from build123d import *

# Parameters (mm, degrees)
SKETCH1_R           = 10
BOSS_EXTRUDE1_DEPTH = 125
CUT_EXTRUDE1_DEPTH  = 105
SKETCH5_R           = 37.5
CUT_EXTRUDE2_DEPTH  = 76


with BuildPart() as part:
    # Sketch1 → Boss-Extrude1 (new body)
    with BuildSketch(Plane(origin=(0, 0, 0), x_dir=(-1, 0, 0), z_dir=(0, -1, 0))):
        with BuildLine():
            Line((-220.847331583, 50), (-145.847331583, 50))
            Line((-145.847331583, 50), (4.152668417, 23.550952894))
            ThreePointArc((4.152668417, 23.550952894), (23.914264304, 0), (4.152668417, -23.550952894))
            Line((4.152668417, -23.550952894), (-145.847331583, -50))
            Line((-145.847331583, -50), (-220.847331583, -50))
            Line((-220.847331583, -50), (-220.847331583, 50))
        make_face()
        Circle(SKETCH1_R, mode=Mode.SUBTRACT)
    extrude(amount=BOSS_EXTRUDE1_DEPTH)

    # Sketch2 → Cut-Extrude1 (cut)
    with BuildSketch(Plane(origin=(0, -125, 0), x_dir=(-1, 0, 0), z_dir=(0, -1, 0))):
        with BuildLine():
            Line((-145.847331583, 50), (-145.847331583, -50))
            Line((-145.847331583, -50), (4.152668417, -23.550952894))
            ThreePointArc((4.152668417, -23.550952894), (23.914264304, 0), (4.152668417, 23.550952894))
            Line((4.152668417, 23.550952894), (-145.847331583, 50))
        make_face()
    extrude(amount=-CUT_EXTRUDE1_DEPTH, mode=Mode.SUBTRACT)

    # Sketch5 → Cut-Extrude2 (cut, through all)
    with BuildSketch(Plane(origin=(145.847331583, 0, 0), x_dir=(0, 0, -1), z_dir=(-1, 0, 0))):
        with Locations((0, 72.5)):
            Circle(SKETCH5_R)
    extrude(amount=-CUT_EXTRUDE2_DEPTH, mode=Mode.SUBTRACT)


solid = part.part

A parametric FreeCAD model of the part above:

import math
import FreeCAD as App
import Part
import Sketcher
Q = App.Units.Quantity

doc = App.newDocument("Part")
body = doc.addObject("PartDesign::Body", "Body")

sketch1 = body.newObject("Sketcher::SketchObject", "Sketch")
sketch1.AttachmentSupport = (doc.getObject("XZ_Plane"), [""])
sketch1.MapMode = "FlatFace"
sketch1.addGeometry(Part.LineSegment(App.Vector(145.847332, -50, 0), App.Vector(220.847332, -50, 0)), False)
sketch1.addGeometry(Part.LineSegment(App.Vector(220.847332, -50, 0), App.Vector(220.847332, 50, 0)), False)
sketch1.addGeometry(Part.LineSegment(App.Vector(220.847332, 50, 0), App.Vector(145.847332, 50, 0)), False)
sketch1.addGeometry(Part.LineSegment(App.Vector(145.847332, 50, 0), App.Vector(-4.152668, 23.550953, 0)), False)
sketch1.addGeometry(Part.ArcOfCircle(Part.Circle(App.Vector(0, 0, 0), App.Vector(0, 0, 1), 23.914264), math.radians(100), math.radians(260)), False)
sketch1.addGeometry(Part.LineSegment(App.Vector(-4.152668, -23.550953, 0), App.Vector(145.847332, -50, 0)), False)
sketch1.addGeometry(Part.Circle(App.Vector(0, 0, 0), App.Vector(0, 0, 1), 10), False)
sketch1.addConstraint(Sketcher.Constraint("Coincident", 0, 2, 1, 1))
sketch1.addConstraint(Sketcher.Constraint("Coincident", 1, 2, 2, 1))
sketch1.addConstraint(Sketcher.Constraint("Coincident", 2, 2, 3, 1))
sketch1.addConstraint(Sketcher.Constraint("Tangent", 3, 2, 4, 1))
sketch1.addConstraint(Sketcher.Constraint("Tangent", 4, 2, 5, 1))
sketch1.addConstraint(Sketcher.Constraint("Coincident", 5, 2, 0, 1))
sketch1.addConstraint(Sketcher.Constraint("Horizontal", 0))
sketch1.addConstraint(Sketcher.Constraint("Vertical", 1))
sketch1.addConstraint(Sketcher.Constraint("Horizontal", 2))
sketch1.addConstraint(Sketcher.Constraint("Coincident", 4, 3, -1, 1))
sketch1.addConstraint(Sketcher.Constraint("Coincident", 6, 3, -1, 1))
sketch1.addConstraint(Sketcher.Constraint("Symmetric", 2, 2, 5, 2, -1))
sketch1.addConstraint(Sketcher.Constraint("Diameter", 6, Q("20 mm")))
sketch1.addConstraint(Sketcher.Constraint("DistanceX", 0, 1, 0, 2, Q("75 mm")))
sketch1.addConstraint(Sketcher.Constraint("DistanceY", 1, 1, 1, 2, Q("100 mm")))
sketch1.addConstraint(Sketcher.Constraint("Angle", 3, Q("-170 deg")))
sketch1.addConstraint(Sketcher.Constraint("DistanceX", 3, 2, 2, 2, Q("150 mm")))
pad1 = body.newObject("PartDesign::Pad", "Pad")
pad1.Profile = sketch1
pad1.Length = 125

sketch2 = body.newObject("Sketcher::SketchObject", "Sketch001")
sketch2.AttachmentSupport = (doc.getObject("XZ_Plane"), [""])
sketch2.MapMode = "FlatFace"
sketch2.AttachmentOffset = App.Placement(App.Vector(0, 0, 125), App.Rotation())
sketch2.addGeometry(Part.LineSegment(App.Vector(145.847332, -50, 0), App.Vector(145.847332, 50, 0)), False)
sketch2.addGeometry(Part.LineSegment(App.Vector(145.847332, 50, 0), App.Vector(-4.152668, 23.550953, 0)), False)
sketch2.addGeometry(Part.ArcOfCircle(Part.Circle(App.Vector(0, 0, 0), App.Vector(0, 0, 1), 23.914264), math.radians(100), math.radians(260)), False)
sketch2.addGeometry(Part.LineSegment(App.Vector(-4.152668, -23.550953, 0), App.Vector(145.847332, -50, 0)), False)
sketch2.addConstraint(Sketcher.Constraint("Coincident", 0, 2, 1, 1))
sketch2.addConstraint(Sketcher.Constraint("Tangent", 1, 2, 2, 1))
sketch2.addConstraint(Sketcher.Constraint("Tangent", 2, 2, 3, 1))
sketch2.addConstraint(Sketcher.Constraint("Coincident", 3, 2, 0, 1))
sketch2.addConstraint(Sketcher.Constraint("Vertical", 0))
sketch2.addConstraint(Sketcher.Constraint("Coincident", 2, 3, -1, 1))
sketch2.addConstraint(Sketcher.Constraint("Vertical", 1, 2, 2, 2))
sketch2.addConstraint(Sketcher.Constraint("DistanceY", 0, 1, 0, 2, Q("100 mm")))
sketch2.addConstraint(Sketcher.Constraint("Angle", 1, Q("-170 deg")))
sketch2.addConstraint(Sketcher.Constraint("DistanceX", 1, 2, 0, 2, Q("150 mm")))
pocket1 = body.newObject("PartDesign::Pocket", "Pocket")
pocket1.Profile = sketch2
pocket1.Length = 105

sketch3 = body.newObject("Sketcher::SketchObject", "Sketch002")
sketch3.AttachmentSupport = (doc.getObject("YZ_Plane"), [""])
sketch3.MapMode = "FlatFace"
sketch3.AttachmentOffset = App.Placement(App.Vector(0, 0, 145.847332), App.Rotation())
sketch3.addGeometry(Part.Circle(App.Vector(-72.5, 0, 0), App.Vector(0, 0, 1), 37.5), False)
sketch3.addConstraint(Sketcher.Constraint("PointOnObject", 0, 3, -1))
sketch3.addConstraint(Sketcher.Constraint("Diameter", 0, Q("75 mm")))
sketch3.addConstraint(Sketcher.Constraint("DistanceX", 0, 3, -1, 1, Q("72.5 mm")))
pocket2 = body.newObject("PartDesign::Pocket", "Pocket001")
pocket2.Profile = sketch3
pocket2.Type = "ThroughAll"
pocket2.Reversed = True

doc.recompute()
